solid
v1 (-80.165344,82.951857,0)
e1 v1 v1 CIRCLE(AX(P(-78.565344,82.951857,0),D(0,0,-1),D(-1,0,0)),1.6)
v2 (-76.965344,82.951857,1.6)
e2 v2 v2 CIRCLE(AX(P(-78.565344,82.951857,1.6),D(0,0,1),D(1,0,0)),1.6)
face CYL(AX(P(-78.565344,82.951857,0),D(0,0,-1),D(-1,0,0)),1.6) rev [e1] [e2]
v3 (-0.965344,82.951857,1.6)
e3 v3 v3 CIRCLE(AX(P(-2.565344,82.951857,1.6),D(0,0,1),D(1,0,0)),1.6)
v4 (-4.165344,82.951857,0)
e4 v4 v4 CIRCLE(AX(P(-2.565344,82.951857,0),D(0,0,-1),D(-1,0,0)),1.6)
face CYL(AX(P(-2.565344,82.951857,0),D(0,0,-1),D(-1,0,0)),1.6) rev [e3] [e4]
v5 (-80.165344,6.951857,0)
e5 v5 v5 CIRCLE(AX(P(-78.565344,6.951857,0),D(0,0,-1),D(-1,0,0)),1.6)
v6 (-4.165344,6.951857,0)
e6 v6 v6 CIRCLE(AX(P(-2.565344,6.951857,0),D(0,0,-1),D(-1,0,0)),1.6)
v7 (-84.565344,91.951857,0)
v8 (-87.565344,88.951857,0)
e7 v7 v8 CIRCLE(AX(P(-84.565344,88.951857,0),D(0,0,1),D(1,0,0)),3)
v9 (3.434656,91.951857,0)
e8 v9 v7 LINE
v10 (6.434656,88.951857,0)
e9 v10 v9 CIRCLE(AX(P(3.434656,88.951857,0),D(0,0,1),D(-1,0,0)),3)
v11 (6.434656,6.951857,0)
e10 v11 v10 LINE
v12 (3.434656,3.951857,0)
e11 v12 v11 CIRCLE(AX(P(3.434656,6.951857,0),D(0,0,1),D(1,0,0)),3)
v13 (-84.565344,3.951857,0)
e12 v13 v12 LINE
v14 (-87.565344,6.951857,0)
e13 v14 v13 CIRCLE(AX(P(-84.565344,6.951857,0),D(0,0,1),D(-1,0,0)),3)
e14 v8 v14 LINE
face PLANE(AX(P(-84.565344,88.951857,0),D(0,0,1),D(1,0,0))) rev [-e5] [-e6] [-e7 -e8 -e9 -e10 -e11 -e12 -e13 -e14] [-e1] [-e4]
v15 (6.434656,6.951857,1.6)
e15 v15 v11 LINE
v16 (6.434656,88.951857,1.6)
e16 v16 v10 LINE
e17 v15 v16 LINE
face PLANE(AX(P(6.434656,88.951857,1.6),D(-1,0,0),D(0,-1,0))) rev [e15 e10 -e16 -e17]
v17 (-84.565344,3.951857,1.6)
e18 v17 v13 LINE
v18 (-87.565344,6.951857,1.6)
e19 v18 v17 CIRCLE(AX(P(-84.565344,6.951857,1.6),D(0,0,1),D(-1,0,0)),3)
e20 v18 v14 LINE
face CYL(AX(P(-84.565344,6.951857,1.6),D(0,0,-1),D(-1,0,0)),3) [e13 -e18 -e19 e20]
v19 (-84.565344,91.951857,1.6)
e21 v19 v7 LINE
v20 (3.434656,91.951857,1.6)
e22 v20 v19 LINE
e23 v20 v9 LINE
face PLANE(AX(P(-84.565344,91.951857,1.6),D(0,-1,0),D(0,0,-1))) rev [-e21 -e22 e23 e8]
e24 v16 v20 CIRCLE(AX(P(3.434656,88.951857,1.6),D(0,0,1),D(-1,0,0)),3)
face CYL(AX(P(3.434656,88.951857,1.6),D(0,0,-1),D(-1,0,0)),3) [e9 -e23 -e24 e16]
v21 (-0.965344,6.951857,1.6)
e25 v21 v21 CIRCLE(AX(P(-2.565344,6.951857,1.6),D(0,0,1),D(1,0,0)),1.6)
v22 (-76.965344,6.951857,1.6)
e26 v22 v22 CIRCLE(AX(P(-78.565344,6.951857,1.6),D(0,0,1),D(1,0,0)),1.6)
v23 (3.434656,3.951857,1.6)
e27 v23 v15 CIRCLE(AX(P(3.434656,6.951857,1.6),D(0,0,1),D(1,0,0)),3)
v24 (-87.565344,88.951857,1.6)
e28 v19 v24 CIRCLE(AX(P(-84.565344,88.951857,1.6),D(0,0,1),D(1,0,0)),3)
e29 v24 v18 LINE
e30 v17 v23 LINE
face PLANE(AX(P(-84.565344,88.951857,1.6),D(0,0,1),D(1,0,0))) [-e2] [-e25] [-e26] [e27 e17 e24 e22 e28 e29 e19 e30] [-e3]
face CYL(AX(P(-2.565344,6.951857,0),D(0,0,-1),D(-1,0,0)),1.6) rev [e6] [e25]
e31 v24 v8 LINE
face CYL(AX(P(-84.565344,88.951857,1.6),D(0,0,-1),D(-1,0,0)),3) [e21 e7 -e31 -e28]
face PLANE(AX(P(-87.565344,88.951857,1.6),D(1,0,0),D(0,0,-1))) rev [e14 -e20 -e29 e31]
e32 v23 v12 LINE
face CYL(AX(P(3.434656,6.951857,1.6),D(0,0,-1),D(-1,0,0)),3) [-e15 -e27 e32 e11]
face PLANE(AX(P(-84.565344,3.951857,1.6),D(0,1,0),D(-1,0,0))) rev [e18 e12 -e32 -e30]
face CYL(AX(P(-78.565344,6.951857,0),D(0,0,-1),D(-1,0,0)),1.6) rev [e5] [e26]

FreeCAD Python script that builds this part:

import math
import FreeCAD as App
import Part
import Sketcher

V = App.Vector
Q = App.Units.Quantity

doc = App.newDocument("Part")
body = doc.addObject("PartDesign::Body", "Body")

# Sketch on XY plane
sketch1 = body.newObject("Sketcher::SketchObject", "Sketch")
sketch1.AttachmentSupport = (doc.getObject("XY_Plane"), [""])
sketch1.MapMode = "FlatFace"
sketch1.addGeometry(Part.LineSegment(V(-87.6, 89, 0), V(-87.6, 7, 0)), False)
sketch1.addGeometry(Part.ArcOfCircle(Part.Circle(V(-84.6, 7, 0), V(0, 0, 1), 3), math.radians(180), math.radians(270)), False)
sketch1.addGeometry(Part.LineSegment(V(-84.6, 4, 0), V(3.4, 4, 0)), False)
sketch1.addGeometry(Part.ArcOfCircle(Part.Circle(V(3.4, 7, 0), V(0, 0, 1), 3), math.radians(-90), math.radians(0)), False)
sketch1.addGeometry(Part.LineSegment(V(6.4, 7, 0), V(6.4, 89, 0)), False)
sketch1.addGeometry(Part.ArcOfCircle(Part.Circle(V(3.4, 89, 0), V(0, 0, 1), 3), math.radians(0), math.radians(90)), False)
sketch1.addGeometry(Part.LineSegment(V(3.4, 92, 0), V(-84.6, 92, 0)), False)
sketch1.addGeometry(Part.ArcOfCircle(Part.Circle(V(-84.6, 89, 0), V(0, 0, 1), 3), math.radians(90), math.radians(180)), False)
sketch1.addConstraint(Sketcher.Constraint("Tangent", 0, 2, 1, 1))
sketch1.addConstraint(Sketcher.Constraint("Tangent", 1, 2, 2, 1))
sketch1.addConstraint(Sketcher.Constraint("Tangent", 2, 2, 3, 1))
sketch1.addConstraint(Sketcher.Constraint("Tangent", 3, 2, 4, 1))
sketch1.addConstraint(Sketcher.Constraint("Tangent", 4, 2, 5, 1))
sketch1.addConstraint(Sketcher.Constraint("Tangent", 5, 2, 6, 1))
sketch1.addConstraint(Sketcher.Constraint("Tangent", 6, 2, 7, 1))
sketch1.addConstraint(Sketcher.Constraint("Tangent", 7, 2, 0, 1))
sketch1.addConstraint(Sketcher.Constraint("Vertical", 0))
sketch1.addConstraint(Sketcher.Constraint("Horizontal", 2))
sketch1.addConstraint(Sketcher.Constraint("Vertical", 4))
sketch1.addConstraint(Sketcher.Constraint("Horizontal", 6))
sketch1.addConstraint(Sketcher.Constraint("Equal", 1, 3))
sketch1.addConstraint(Sketcher.Constraint("Equal", 3, 5))
sketch1.addConstraint(Sketcher.Constraint("Equal", 5, 7))
sketch1.addConstraint(Sketcher.Constraint("Radius", 1, Q("3 mm")))
sketch1.addConstraint(Sketcher.Constraint("DistanceX", 2, 1, 2, 2, Q("88 mm")))
sketch1.addConstraint(Sketcher.Constraint("DistanceY", 0, 2, 0, 1, Q("82 mm")))
sketch1.addConstraint(Sketcher.Constraint("DistanceX", 1, 3, -1, 1, Q("84.565344 mm")))
sketch1.addConstraint(Sketcher.Constraint("DistanceY", -1, 1, 1, 3, Q("6.951857 mm")))
pad1 = body.newObject("PartDesign::Pad", "Pad")
pad1.Profile = sketch1
pad1.Length = 1.6

# Sketch on XY plane
sketch2 = body.newObject("Sketcher::SketchObject", "Sketch001")
sketch2.AttachmentSupport = (doc.getObject("XY_Plane"), [""])
sketch2.MapMode = "FlatFace"
sketch2.addGeometry(Part.Circle(V(-78.6, 7, 0), V(0, 0, 1), 1.6), False)
sketch2.addGeometry(Part.Circle(V(-78.6, 83, 0), V(0, 0, 1), 1.6), False)
sketch2.addGeometry(Part.Circle(V(-2.6, 83, 0), V(0, 0, 1), 1.6), False)
sketch2.addGeometry(Part.Circle(V(-2.6, 7, 0), V(0, 0, 1), 1.6), False)
sketch2.addConstraint(Sketcher.Constraint("Equal", 0, 1))
sketch2.addConstraint(Sketcher.Constraint("Equal", 1, 2))
sketch2.addConstraint(Sketcher.Constraint("Equal", 2, 3))
sketch2.addConstraint(Sketcher.Constraint("Horizontal", 1, 3, 2, 3))
sketch2.addConstraint(Sketcher.Constraint("Horizontal", 0, 3, 3, 3))
sketch2.addConstraint(Sketcher.Constraint("Vertical", 0, 3, 1, 3))
sketch2.addConstraint(Sketcher.Constraint("Vertical", 2, 3, 3, 3))
sketch2.addConstraint(Sketcher.Constraint("Diameter", 0, Q("3.2 mm")))
sketch2.addConstraint(Sketcher.Constraint("DistanceY", 0, 3, 1, 3, Q("76 mm")))
sketch2.addConstraint(Sketcher.Constraint("DistanceX", 1, 3, 2, 3, Q("76 mm")))
sketch2.addConstraint(Sketcher.Constraint("DistanceX", 0, 3, -1, 1, Q("78.565344 mm")))
sketch2.addConstraint(Sketcher.Constraint("DistanceY", -1, 1, 0, 3, Q("6.951857 mm")))
doc.recompute()
hole = body.newObject("PartDesign::Hole", "Hole")
hole.Profile = sketch2
hole.ThreadType = "None"
hole.Diameter = 3.2
hole.DepthType = "ThroughAll"
hole.Reversed = True

doc.recompute()
